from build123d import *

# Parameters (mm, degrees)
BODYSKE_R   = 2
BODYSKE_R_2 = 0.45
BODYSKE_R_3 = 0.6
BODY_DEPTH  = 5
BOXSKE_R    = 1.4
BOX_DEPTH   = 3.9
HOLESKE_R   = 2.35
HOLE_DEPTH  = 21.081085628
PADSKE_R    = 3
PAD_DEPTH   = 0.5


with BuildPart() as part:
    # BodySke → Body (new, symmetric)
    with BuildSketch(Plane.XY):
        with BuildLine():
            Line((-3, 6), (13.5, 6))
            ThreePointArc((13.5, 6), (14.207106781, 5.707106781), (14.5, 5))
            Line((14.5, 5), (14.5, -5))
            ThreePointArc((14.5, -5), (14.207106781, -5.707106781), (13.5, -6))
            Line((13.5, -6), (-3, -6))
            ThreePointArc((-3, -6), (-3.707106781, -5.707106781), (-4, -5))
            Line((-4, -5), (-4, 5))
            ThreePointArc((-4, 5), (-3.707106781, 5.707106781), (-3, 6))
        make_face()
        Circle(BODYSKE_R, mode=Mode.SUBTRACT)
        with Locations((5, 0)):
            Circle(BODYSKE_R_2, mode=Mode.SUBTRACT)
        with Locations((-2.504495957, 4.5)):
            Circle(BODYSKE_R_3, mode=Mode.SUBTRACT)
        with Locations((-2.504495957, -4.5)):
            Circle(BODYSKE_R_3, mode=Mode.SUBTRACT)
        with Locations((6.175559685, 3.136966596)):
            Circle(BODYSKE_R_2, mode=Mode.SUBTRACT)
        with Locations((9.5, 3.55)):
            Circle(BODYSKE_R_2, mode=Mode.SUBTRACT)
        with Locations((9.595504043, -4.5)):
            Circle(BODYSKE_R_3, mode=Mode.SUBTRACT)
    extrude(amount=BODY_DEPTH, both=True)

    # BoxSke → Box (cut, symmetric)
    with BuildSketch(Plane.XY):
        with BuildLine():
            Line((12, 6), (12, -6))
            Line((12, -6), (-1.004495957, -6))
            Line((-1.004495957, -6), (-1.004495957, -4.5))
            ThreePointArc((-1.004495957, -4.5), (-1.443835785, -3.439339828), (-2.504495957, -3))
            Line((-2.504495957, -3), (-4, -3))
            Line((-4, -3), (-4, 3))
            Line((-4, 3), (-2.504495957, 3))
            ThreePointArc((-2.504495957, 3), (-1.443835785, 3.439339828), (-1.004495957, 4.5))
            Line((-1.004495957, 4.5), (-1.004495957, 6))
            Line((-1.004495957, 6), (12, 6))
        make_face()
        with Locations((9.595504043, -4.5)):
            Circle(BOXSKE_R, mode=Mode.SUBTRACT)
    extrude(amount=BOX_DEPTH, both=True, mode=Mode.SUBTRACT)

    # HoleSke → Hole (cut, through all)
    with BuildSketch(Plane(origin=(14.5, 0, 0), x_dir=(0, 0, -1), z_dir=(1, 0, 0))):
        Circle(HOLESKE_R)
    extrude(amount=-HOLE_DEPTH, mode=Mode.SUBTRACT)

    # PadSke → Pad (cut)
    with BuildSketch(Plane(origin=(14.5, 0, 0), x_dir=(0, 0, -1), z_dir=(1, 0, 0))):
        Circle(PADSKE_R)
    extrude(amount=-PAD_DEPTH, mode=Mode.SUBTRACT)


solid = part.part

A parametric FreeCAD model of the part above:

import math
import FreeCAD as App
import Part
import Sketcher
from FreeCAD import Vector
Q = App.Units.Quantity

doc = App.newDocument("Part")
body = doc.addObject("PartDesign::Body", "Body")

# Sketch on XY plane
sketch1 = body.newObject("Sketcher::SketchObject", "Sketch")
sketch1.AttachmentSupport = (doc.getObject("XY_Plane"), [""])
sketch1.MapMode = "FlatFace"
sketch1.addGeometry([
    Part.LineSegment(Vector(13.5, 6, 0), Vector(-3, 6, 0)),  # 0
    Part.ArcOfCircle(Part.Circle(Vector(-3, 5, 0), Vector(0, 0, 1), 1), math.radians(90), math.radians(180)),  # 1
    Part.LineSegment(Vector(-4, 5, 0), Vector(-4, -5, 0)),  # 2
    Part.ArcOfCircle(Part.Circle(Vector(-3, -5, 0), Vector(0, 0, 1), 1), math.radians(-180), math.radians(-90)),  # 3
    Part.LineSegment(Vector(-3, -6, 0), Vector(13.5, -6, 0)),  # 4
    Part.ArcOfCircle(Part.Circle(Vector(13.5, -5, 0), Vector(0, 0, 1), 1), math.radians(-90), math.radians(0)),  # 5
    Part.LineSegment(Vector(14.5, -5, 0), Vector(14.5, 5, 0)),  # 6
    Part.ArcOfCircle(Part.Circle(Vector(13.5, 5, 0), Vector(0, 0, 1), 1), math.radians(0), math.radians(90)),  # 7
    Part.Circle(Vector(9.6, -4.5, 0), Vector(0, 0, 1), 0.6),  # 8
    Part.Circle(Vector(-2.5, -4.5, 0), Vector(0, 0, 1), 0.6),  # 9
    Part.Circle(Vector(5, 0, 0), Vector(0, 0, 1), 0.45),  # 10
    Part.Circle(Vector(9.5, 3.55, 0), Vector(0, 0, 1), 0.45),  # 11
    Part.Circle(Vector(6.18, 3.14, 0), Vector(0, 0, 1), 0.45),  # 12
    Part.Circle(Vector(0, 0, 0), Vector(0, 0, 1), 2),  # 13
    Part.Circle(Vector(-2.5, 4.5, 0), Vector(0, 0, 1), 0.6),  # 14
], False)
sketch1.addConstraint([
    Sketcher.Constraint("Tangent", 0, 2, 1, 1),
    Sketcher.Constraint("Tangent", 1, 2, 2, 1),
    Sketcher.Constraint("Tangent", 2, 2, 3, 1),
    Sketcher.Constraint("Tangent", 3, 2, 4, 1),
    Sketcher.Constraint("Tangent", 4, 2, 5, 1),
    Sketcher.Constraint("Tangent", 5, 2, 6, 1),
    Sketcher.Constraint("Tangent", 6, 2, 7, 1),
    Sketcher.Constraint("Tangent", 7, 2, 0, 1),
    Sketcher.Constraint("Horizontal", 0),
    Sketcher.Constraint("Vertical", 2),
    Sketcher.Constraint("Horizontal", 4),
    Sketcher.Constraint("Vertical", 6),
    Sketcher.Constraint("Coincident", 13, 3, -1, 1),
    Sketcher.Constraint("Equal", 1, 3),
    Sketcher.Constraint("Equal", 3, 5),
    Sketcher.Constraint("Equal", 5, 7),
    Sketcher.Constraint("Equal", 8, 9),
    Sketcher.Constraint("Equal", 10, 11),
    Sketcher.Constraint("Equal", 11, 12),
    Sketcher.Constraint("Equal", 9, 14),
    Sketcher.Constraint("Symmetric", 9, 3, 14, 3, -1),
    Sketcher.Constraint("PointOnObject", 10, 3, -1),
    Sketcher.Constraint("Horizontal", 8, 3, 9, 3),
    Sketcher.Constraint("Diameter", 13, Q("4 mm")),
    Sketcher.Constraint("Radius", 1, Q("1 mm")),
    Sketcher.Constraint("Diameter", 8, Q("1.2 mm")),
    Sketcher.Constraint("Diameter", 10, Q("0.9 mm")),
    Sketcher.Constraint("DistanceY", 2, 2, 2, 1, Q("10 mm")),
    Sketcher.Constraint("DistanceX", 0, 2, 0, 1, Q("16.5 mm")),
    Sketcher.Constraint("DistanceX", 1, 3, -1, 1, Q("3 mm")),
    Sketcher.Constraint("DistanceY", -1, 1, 1, 3, Q("5 mm")),
    Sketcher.Constraint("DistanceX", -1, 1, 10, 3, Q("5 mm")),
    Sketcher.Constraint("DistanceX", 11, 3, 7, 3, Q("4 mm")),
    Sketcher.Constraint("DistanceY", 9, 3, 14, 3, Q("9 mm")),
    Sketcher.Constraint("DistanceX", 9, 3, 8, 3, Q("12.1 mm")),
    Sketcher.Constraint("DistanceY", -1, 1, 11, 3, Q("3.55 mm")),
    Sketcher.Constraint("DistanceX", -1, 1, 12, 3, Q("6.17556 mm")),
    Sketcher.Constraint("DistanceX", -1, 1, 8, 3, Q("9.595504 mm")),
    Sketcher.Constraint("DistanceY", -1, 1, 12, 3, Q("3.136967 mm")),
])
pad1 = body.newObject("PartDesign::Pad", "Pad")
pad1.Profile = sketch1
pad1.Length = 10
pad1.Midplane = True

# Sketch on XY plane
sketch2 = body.newObject("Sketcher::SketchObject", "Sketch001")
sketch2.AttachmentSupport = (doc.getObject("XY_Plane"), [""])
sketch2.MapMode = "FlatFace"
sketch2.addGeometry([
    Part.LineSegment(Vector(12, -6, 0), Vector(12, 6, 0)),  # 0
    Part.LineSegment(Vector(12, 6, 0), Vector(-1, 6, 0)),  # 1
    Part.LineSegment(Vector(-1, 6, 0), Vector(-1, 4.5, 0)),  # 2
    Part.ArcOfCircle(Part.Circle(Vector(-2.5, 4.5, 0), Vector(0, 0, 1), 1.5), math.radians(-90), math.radians(0)),  # 3
    Part.LineSegment(Vector(-2.5, 3, 0), Vector(-4, 3, 0)),  # 4
    Part.LineSegment(Vector(-4, 3, 0), Vector(-4, -3, 0)),  # 5
    Part.LineSegment(Vector(-4, -3, 0), Vector(-2.5, -3, 0)),  # 6
    Part.ArcOfCircle(Part.Circle(Vector(-2.5, -4.5, 0), Vector(0, 0, 1), 1.5), math.radians(0), math.radians(90)),  # 7
    Part.LineSegment(Vector(-1, -4.5, 0), Vector(-1, -6, 0)),  # 8
    Part.LineSegment(Vector(-1, -6, 0), Vector(12, -6, 0)),  # 9
    Part.Circle(Vector(9.6, -4.5, 0), Vector(0, 0, 1), 1.4),  # 10
], False)
sketch2.addConstraint([
    Sketcher.Constraint("Coincident", 0, 2, 1, 1),
    Sketcher.Constraint("Coincident", 1, 2, 2, 1),
    Sketcher.Constraint("Tangent", 2, 2, 3, 2),
    Sketcher.Constraint("Tangent", 3, 1, 4, 1),
    Sketcher.Constraint("Coincident", 4, 2, 5, 1),
    Sketcher.Constraint("Coincident", 5, 2, 6, 1),
    Sketcher.Constraint("Tangent", 6, 2, 7, 2),
    Sketcher.Constraint("Tangent", 7, 1, 8, 1),
    Sketcher.Constraint("Coincident", 8, 2, 9, 1),
    Sketcher.Constraint("Coincident", 9, 2, 0, 1),
    Sketcher.Constraint("Vertical", 0),
    Sketcher.Constraint("Horizontal", 1),
    Sketcher.Constraint("Vertical", 2),
    Sketcher.Constraint("Horizontal", 4),
    Sketcher.Constraint("Vertical", 5),
    Sketcher.Constraint("Horizontal", 6),
    Sketcher.Constraint("Vertical", 8),
    Sketcher.Constraint("Horizontal", 9),
    Sketcher.Constraint("Equal", 3, 7),
    Sketcher.Constraint("Symmetric", 3, 3, 7, 3, -1),
    Sketcher.Constraint("Horizontal", 7, 3, 10, 3),
    Sketcher.Constraint("Equal", 2, 8),
    Sketcher.Constraint("Diameter", 10, Q("2.8 mm")),
    Sketcher.Constraint("Radius", 3, Q("1.5 mm")),
    Sketcher.Constraint("DistanceY", 0, 1, 0, 2, Q("12 mm")),
    Sketcher.Constraint("DistanceY", 5, 2, 5, 1, Q("6 mm")),
    Sketcher.Constraint("DistanceX", -1, 1, 0, 2, Q("12 mm")),
    Sketcher.Constraint("DistanceX", 4, 2, -1, 1, Q("4 mm")),
    Sketcher.Constraint("DistanceX", 7, 3, 10, 3, Q("12.1 mm")),
    Sketcher.Constraint("DistanceX", 1, 2, 1, 1, Q("13.004496 mm")),
])
pocket1 = body.newObject("PartDesign::Pocket", "Pocket")
pocket1.Profile = sketch2
pocket1.Length = 7.8
pocket1.Midplane = True

# Sketch on YZ plane
sketch3 = body.newObject("Sketcher::SketchObject", "Sketch002")
sketch3.AttachmentSupport = (doc.getObject("YZ_Plane"), [""])
sketch3.MapMode = "FlatFace"
sketch3.AttachmentOffset = App.Placement(Vector(0, 0, 14.5), App.Rotation())
sketch3.addGeometry(Part.Circle(Vector(0, 0, 0), Vector(0, 0, 1), 2.4), False)
sketch3.addConstraint([
    Sketcher.Constraint("Coincident", 0, 3, -1, 1),
    Sketcher.Constraint("Diameter", 0, Q("4.7 mm")),
])
pocket2 = body.newObject("PartDesign::Pocket", "Pocket001")
pocket2.Profile = sketch3
pocket2.Type = "ThroughAll"

# Sketch on YZ plane
sketch4 = body.newObject("Sketcher::SketchObject", "Sketch003")
sketch4.AttachmentSupport = (doc.getObject("YZ_Plane"), [""])
sketch4.MapMode = "FlatFace"
sketch4.AttachmentOffset = App.Placement(Vector(0, 0, 14.5), App.Rotation())
sketch4.addGeometry(Part.Circle(Vector(0, 0, 0), Vector(0, 0, 1), 3), False)
sketch4.addConstraint([
    Sketcher.Constraint("Coincident", 0, 3, -1, 1),
    Sketcher.Constraint("Diameter", 0, Q("6 mm")),
])
pocket3 = body.newObject("PartDesign::Pocket", "Pocket002")
pocket3.Profile = sketch4
pocket3.Length = 0.5

doc.recompute()
